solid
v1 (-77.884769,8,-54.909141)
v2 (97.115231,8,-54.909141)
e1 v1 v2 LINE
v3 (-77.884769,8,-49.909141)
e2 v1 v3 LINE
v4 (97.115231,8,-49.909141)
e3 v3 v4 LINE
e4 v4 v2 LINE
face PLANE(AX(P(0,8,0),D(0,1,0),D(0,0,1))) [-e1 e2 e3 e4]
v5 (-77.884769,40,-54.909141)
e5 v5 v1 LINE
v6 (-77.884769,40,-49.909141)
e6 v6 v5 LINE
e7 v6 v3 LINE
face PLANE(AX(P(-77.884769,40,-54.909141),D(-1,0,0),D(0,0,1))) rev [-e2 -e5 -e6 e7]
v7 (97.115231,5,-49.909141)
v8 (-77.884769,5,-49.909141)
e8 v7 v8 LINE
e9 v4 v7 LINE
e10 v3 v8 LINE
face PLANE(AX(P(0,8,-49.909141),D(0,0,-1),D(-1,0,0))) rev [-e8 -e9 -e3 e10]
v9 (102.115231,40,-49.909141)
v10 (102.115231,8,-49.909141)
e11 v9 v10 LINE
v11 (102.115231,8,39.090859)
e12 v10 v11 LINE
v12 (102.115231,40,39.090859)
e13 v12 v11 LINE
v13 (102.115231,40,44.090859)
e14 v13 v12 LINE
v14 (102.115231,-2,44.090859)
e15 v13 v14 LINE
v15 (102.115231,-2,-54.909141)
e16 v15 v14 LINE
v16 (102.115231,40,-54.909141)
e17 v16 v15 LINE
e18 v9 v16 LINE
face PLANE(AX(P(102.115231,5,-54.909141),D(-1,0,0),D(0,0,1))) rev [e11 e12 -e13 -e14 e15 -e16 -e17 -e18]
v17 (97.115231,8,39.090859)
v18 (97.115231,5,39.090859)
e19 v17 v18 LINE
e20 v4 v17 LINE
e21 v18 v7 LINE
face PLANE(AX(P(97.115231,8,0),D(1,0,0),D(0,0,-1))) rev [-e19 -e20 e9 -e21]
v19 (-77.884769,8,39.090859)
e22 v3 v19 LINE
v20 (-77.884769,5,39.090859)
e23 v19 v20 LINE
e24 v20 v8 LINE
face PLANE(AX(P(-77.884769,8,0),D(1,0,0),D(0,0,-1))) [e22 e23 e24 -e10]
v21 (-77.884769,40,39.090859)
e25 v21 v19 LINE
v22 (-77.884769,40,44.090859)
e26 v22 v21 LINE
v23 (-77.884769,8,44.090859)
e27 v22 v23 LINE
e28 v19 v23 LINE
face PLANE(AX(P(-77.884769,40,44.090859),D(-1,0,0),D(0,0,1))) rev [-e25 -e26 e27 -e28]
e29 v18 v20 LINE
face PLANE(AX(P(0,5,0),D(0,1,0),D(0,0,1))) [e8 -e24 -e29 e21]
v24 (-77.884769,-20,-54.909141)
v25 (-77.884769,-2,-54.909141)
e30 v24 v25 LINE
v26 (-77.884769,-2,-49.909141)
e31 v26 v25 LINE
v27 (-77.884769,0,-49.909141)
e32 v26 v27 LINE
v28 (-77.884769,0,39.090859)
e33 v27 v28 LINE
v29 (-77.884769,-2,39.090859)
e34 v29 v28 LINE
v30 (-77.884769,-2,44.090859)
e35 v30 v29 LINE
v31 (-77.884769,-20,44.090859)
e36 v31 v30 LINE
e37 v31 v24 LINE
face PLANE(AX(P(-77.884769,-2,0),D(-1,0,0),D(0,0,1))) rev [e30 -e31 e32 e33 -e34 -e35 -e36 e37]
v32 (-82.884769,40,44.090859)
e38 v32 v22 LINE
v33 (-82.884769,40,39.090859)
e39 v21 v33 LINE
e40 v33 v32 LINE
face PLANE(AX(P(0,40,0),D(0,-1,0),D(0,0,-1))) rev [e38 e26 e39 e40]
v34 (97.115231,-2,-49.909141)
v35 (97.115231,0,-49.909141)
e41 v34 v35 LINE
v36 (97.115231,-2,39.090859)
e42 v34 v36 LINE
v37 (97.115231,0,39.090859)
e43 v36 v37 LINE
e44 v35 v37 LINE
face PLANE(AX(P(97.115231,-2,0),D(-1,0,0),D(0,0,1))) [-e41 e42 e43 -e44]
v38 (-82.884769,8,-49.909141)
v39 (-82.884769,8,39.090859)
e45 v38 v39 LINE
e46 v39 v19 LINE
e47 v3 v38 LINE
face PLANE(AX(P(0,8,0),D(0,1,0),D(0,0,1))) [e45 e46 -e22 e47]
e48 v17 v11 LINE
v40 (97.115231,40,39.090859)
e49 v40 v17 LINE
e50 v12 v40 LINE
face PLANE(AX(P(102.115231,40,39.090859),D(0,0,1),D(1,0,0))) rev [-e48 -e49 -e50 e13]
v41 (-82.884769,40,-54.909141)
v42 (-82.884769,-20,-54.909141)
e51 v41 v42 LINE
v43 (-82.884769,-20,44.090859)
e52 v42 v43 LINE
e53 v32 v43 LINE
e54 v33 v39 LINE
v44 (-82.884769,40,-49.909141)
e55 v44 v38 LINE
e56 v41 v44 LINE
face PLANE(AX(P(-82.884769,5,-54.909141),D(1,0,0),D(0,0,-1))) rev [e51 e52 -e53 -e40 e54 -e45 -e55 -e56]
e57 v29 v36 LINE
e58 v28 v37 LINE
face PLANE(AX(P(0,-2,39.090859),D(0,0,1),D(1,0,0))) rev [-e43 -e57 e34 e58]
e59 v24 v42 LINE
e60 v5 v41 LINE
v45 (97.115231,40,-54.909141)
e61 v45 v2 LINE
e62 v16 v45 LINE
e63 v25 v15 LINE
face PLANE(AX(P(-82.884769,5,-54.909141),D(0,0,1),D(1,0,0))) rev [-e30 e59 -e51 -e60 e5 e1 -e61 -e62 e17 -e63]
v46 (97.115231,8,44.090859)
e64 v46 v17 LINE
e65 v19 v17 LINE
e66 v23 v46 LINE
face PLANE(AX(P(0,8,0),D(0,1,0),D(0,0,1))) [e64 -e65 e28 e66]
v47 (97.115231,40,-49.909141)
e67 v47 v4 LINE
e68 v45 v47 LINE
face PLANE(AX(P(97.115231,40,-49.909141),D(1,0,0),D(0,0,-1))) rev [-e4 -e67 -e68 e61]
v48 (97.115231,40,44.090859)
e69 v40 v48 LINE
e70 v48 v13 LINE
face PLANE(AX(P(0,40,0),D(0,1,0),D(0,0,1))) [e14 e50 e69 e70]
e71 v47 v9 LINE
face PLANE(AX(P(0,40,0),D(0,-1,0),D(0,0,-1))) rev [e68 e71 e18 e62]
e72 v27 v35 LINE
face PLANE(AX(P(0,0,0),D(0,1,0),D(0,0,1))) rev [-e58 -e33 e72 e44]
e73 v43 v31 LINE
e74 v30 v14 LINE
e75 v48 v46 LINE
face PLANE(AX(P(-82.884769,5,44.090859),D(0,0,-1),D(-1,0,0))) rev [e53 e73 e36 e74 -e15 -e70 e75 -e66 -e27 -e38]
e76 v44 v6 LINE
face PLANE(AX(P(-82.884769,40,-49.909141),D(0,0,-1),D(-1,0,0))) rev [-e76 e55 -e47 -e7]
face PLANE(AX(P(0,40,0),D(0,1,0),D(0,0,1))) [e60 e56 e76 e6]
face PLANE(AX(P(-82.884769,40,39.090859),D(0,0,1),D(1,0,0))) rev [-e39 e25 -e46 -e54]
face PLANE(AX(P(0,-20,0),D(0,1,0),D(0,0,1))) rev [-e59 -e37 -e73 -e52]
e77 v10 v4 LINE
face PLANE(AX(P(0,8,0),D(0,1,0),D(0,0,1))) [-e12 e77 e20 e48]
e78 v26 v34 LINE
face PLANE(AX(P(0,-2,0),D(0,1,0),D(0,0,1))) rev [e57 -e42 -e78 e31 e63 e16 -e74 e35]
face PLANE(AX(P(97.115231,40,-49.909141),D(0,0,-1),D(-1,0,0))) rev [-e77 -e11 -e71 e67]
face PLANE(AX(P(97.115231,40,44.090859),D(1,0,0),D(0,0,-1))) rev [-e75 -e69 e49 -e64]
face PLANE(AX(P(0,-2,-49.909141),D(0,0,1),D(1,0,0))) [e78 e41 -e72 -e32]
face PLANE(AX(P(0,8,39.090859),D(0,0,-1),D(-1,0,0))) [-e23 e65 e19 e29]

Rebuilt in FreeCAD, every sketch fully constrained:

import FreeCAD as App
import Part
import Sketcher
from FreeCAD import Vector

doc = App.newDocument("Part")
body = doc.addObject("PartDesign::Body", "Body")

# Sketch on XZ plane
sketch1 = body.newObject("Sketcher::SketchObject", "Sketch")
sketch1.AttachmentSupport = (doc.getObject("XZ_Plane"), [""])
sketch1.MapMode = "FlatFace"
sketch1.addGeometry([
    Part.LineSegment(Vector(-83, -55, 0), Vector(-83, 44, 0)),
    Part.LineSegment(Vector(-83, 44, 0), Vector(102, 44, 0)),
    Part.LineSegment(Vector(102, 44, 0), Vector(102, -55, 0)),
    Part.LineSegment(Vector(102, -55, 0), Vector(-83, -55, 0)),
], False)
sketch1.addConstraint([
    Sketcher.Constraint("Coincident", 0, 2, 1, 1),
    Sketcher.Constraint("Coincident", 1, 2, 2, 1),
    Sketcher.Constraint("Coincident", 2, 2, 3, 1),
    Sketcher.Constraint("Coincident", 3, 2, 0, 1),
    Sketcher.Constraint("Vertical", 0),
    Sketcher.Constraint("Horizontal", 1),
    Sketcher.Constraint("Vertical", 2),
    Sketcher.Constraint("Horizontal", 3),
    Sketcher.Constraint("DistanceX", 1, 1, 1, 2, 185.0),
    Sketcher.Constraint("DistanceY", 0, 1, 0, 2, 99.0),
    Sketcher.Constraint("DistanceX", 0, 2, -1, 1, 82.884769),
    Sketcher.Constraint("DistanceY", -1, 1, 0, 2, 44.090859),
])
pad1 = body.newObject("PartDesign::Pad", "Pad")
pad1.Profile = sketch1
pad1.Length = 5
pad1.Reversed = True

# Sketch on XZ plane
sketch2 = body.newObject("Sketcher::SketchObject", "Sketch001")
sketch2.AttachmentSupport = (doc.getObject("XZ_Plane"), [""])
sketch2.MapMode = "FlatFace"
sketch2.addGeometry([
    Part.LineSegment(Vector(-83, -55, 0), Vector(-83, 44, 0)),  # 0
    Part.LineSegment(Vector(-83, 44, 0), Vector(102, 44, 0)),  # 1
    Part.LineSegment(Vector(102, 44, 0), Vector(102, -55, 0)),  # 2
    Part.LineSegment(Vector(102, -55, 0), Vector(-83, -55, 0)),  # 3
    Part.LineSegment(Vector(-78, 39, 0), Vector(-78, -50, 0)),  # 4
    Part.LineSegment(Vector(-78, -50, 0), Vector(97, -50, 0)),  # 5
    Part.LineSegment(Vector(97, -50, 0), Vector(97, 39, 0)),  # 6
    Part.LineSegment(Vector(97, 39, 0), Vector(-78, 39, 0)),  # 7
], False)
sketch2.addConstraint([
    Sketcher.Constraint("Coincident", 0, 2, 1, 1),
    Sketcher.Constraint("Coincident", 1, 2, 2, 1),
    Sketcher.Constraint("Coincident", 2, 2, 3, 1),
    Sketcher.Constraint("Coincident", 3, 2, 0, 1),
    Sketcher.Constraint("Coincident", 4, 2, 5, 1),
    Sketcher.Constraint("Coincident", 5, 2, 6, 1),
    Sketcher.Constraint("Coincident", 6, 2, 7, 1),
    Sketcher.Constraint("Coincident", 7, 2, 4, 1),
    Sketcher.Constraint("Vertical", 0),
    Sketcher.Constraint("Horizontal", 1),
    Sketcher.Constraint("Vertical", 2),
    Sketcher.Constraint("Horizontal", 3),
    Sketcher.Constraint("Vertical", 4),
    Sketcher.Constraint("Horizontal", 5),
    Sketcher.Constraint("Vertical", 6),
    Sketcher.Constraint("Horizontal", 7),
    Sketcher.Constraint("DistanceX", 1, 1, 1, 2, 185.0),
    Sketcher.Constraint("DistanceX", 5, 1, 5, 2, 175.0),
    Sketcher.Constraint("DistanceY", 0, 1, 0, 2, 99.0),
    Sketcher.Constraint("DistanceY", 4, 2, 4, 1, 89.0),
    Sketcher.Constraint("DistanceX", 3, 2, 4, 2, 5.0),
    Sketcher.Constraint("DistanceY", 3, 2, 4, 2, 5.0),
    Sketcher.Constraint("DistanceX", 0, 2, -1, 1, 82.884769),
    Sketcher.Constraint("DistanceY", -1, 1, 0, 2, 44.090859),
])
pad2 = body.newObject("PartDesign::Pad", "Pad001")
pad2.Profile = sketch2
pad2.Length = 8
pad2.Reversed = True

# Sketch on XZ plane
sketch3 = body.newObject("Sketcher::SketchObject", "Sketch002")
sketch3.AttachmentSupport = (doc.getObject("XZ_Plane"), [""])
sketch3.MapMode = "FlatFace"
sketch3.addGeometry([
    Part.LineSegment(Vector(-83, 44, 0), Vector(102, 44, 0)),  # 0
    Part.LineSegment(Vector(102, 44, 0), Vector(102, -55, 0)),  # 1
    Part.LineSegment(Vector(102, -55, 0), Vector(-83, -55, 0)),  # 2
    Part.LineSegment(Vector(-83, -55, 0), Vector(-83, 44, 0)),  # 3
    Part.LineSegment(Vector(-78, -50, 0), Vector(97, -50, 0)),  # 4
    Part.LineSegment(Vector(97, -50, 0), Vector(97, 39, 0)),  # 5
    Part.LineSegment(Vector(97, 39, 0), Vector(-78, 39, 0)),  # 6
    Part.LineSegment(Vector(-78, 39, 0), Vector(-78, -50, 0)),  # 7
], False)
sketch3.addConstraint([
    Sketcher.Constraint("Coincident", 0, 2, 1, 1),
    Sketcher.Constraint("Coincident", 1, 2, 2, 1),
    Sketcher.Constraint("Coincident", 2, 2, 3, 1),
    Sketcher.Constraint("Coincident", 3, 2, 0, 1),
    Sketcher.Constraint("Coincident", 4, 2, 5, 1),
    Sketcher.Constraint("Coincident", 5, 2, 6, 1),
    Sketcher.Constraint("Coincident", 6, 2, 7, 1),
    Sketcher.Constraint("Coincident", 7, 2, 4, 1),
    Sketcher.Constraint("Horizontal", 0),
    Sketcher.Constraint("Vertical", 1),
    Sketcher.Constraint("Horizontal", 2),
    Sketcher.Constraint("Vertical", 3),
    Sketcher.Constraint("Horizontal", 4),
    Sketcher.Constraint("Vertical", 5),
    Sketcher.Constraint("Horizontal", 6),
    Sketcher.Constraint("Vertical", 7),
    Sketcher.Constraint("DistanceX", 0, 1, 0, 2, 185.0),
    Sketcher.Constraint("DistanceX", 4, 1, 4, 2, 175.0),
    Sketcher.Constraint("DistanceY", 1, 2, 1, 1, 99.0),
    Sketcher.Constraint("DistanceY", 5, 1, 5, 2, 89.0),
    Sketcher.Constraint("DistanceX", 4, 2, 1, 2, 5.0),
    Sketcher.Constraint("DistanceY", 1, 2, 4, 2, 5.0),
    Sketcher.Constraint("DistanceX", -1, 1, 0, 2, 102.115231),
    Sketcher.Constraint("DistanceY", -1, 1, 0, 2, 44.090859),
])
pad3 = body.newObject("PartDesign::Pad", "Pad002")
pad3.Profile = sketch3
pad3.Length = 2

# Sketch on XZ plane
sketch4 = body.newObject("Sketcher::SketchObject", "Sketch003")
sketch4.AttachmentSupport = (doc.getObject("XZ_Plane"), [""])
sketch4.MapMode = "FlatFace"
sketch4.addGeometry([
    Part.LineSegment(Vector(-83, -55, 0), Vector(-83, 44, 0)),
    Part.LineSegment(Vector(-83, 44, 0), Vector(-78, 44, 0)),
    Part.LineSegment(Vector(-78, 44, 0), Vector(-78, -55, 0)),
    Part.LineSegment(Vector(-78, -55, 0), Vector(-83, -55, 0)),
], False)
sketch4.addConstraint([
    Sketcher.Constraint("Coincident", 0, 2, 1, 1),
    Sketcher.Constraint("Coincident", 1, 2, 2, 1),
    Sketcher.Constraint("Coincident", 2, 2, 3, 1),
    Sketcher.Constraint("Coincident", 3, 2, 0, 1),
    Sketcher.Constraint("Vertical", 0),
    Sketcher.Constraint("Horizontal", 1),
    Sketcher.Constraint("Vertical", 2),
    Sketcher.Constraint("Horizontal", 3),
    Sketcher.Constraint("DistanceX", 1, 1, 1, 2, 5.0),
    Sketcher.Constraint("DistanceY", 0, 1, 0, 2, 99.0),
    Sketcher.Constraint("DistanceX", 0, 2, -1, 1, 82.884769),
    Sketcher.Constraint("DistanceY", -1, 1, 0, 2, 44.090859),
])
pad4 = body.newObject("PartDesign::Pad", "Pad003")
pad4.Profile = sketch4
pad4.Length = 20

# Sketch on XZ plane
sketch5 = body.newObject("Sketcher::SketchObject", "Sketch004")
sketch5.AttachmentSupport = (doc.getObject("XZ_Plane"), [""])
sketch5.MapMode = "FlatFace"
sketch5.addGeometry([
    Part.LineSegment(Vector(-83, -55, 0), Vector(-83, -50, 0)),  # 0
    Part.LineSegment(Vector(-83, -50, 0), Vector(-78, -50, 0)),  # 1
    Part.LineSegment(Vector(-78, -50, 0), Vector(-78, -55, 0)),  # 2
    Part.LineSegment(Vector(-78, -55, 0), Vector(-83, -55, 0)),  # 3
    Part.LineSegment(Vector(97, -55, 0), Vector(97, -50, 0)),  # 4
    Part.LineSegment(Vector(97, -50, 0), Vector(102, -50, 0)),  # 5
    Part.LineSegment(Vector(102, -50, 0), Vector(102, -55, 0)),  # 6
    Part.LineSegment(Vector(102, -55, 0), Vector(97, -55, 0)),  # 7
    Part.LineSegment(Vector(97, 39, 0), Vector(97, 44, 0)),  # 8
    Part.LineSegment(Vector(97, 44, 0), Vector(102, 44, 0)),  # 9
    Part.LineSegment(Vector(102, 44, 0), Vector(102, 39, 0)),  # 10
    Part.LineSegment(Vector(102, 39, 0), Vector(97, 39, 0)),  # 11
    Part.LineSegment(Vector(-83, 39, 0), Vector(-83, 44, 0)),  # 12
    Part.LineSegment(Vector(-83, 44, 0), Vector(-78, 44, 0)),  # 13
    Part.LineSegment(Vector(-78, 44, 0), Vector(-78, 39, 0)),  # 14
    Part.LineSegment(Vector(-78, 39, 0), Vector(-83, 39, 0)),  # 15
], False)
sketch5.addConstraint([
    Sketcher.Constraint("Coincident", 0, 2, 1, 1),
    Sketcher.Constraint("Coincident", 1, 2, 2, 1),
    Sketcher.Constraint("Coincident", 2, 2, 3, 1),
    Sketcher.Constraint("Coincident", 3, 2, 0, 1),
    Sketcher.Constraint("Coincident", 4, 2, 5, 1),
    Sketcher.Constraint("Coincident", 5, 2, 6, 1),
    Sketcher.Constraint("Coincident", 6, 2, 7, 1),
    Sketcher.Constraint("Coincident", 7, 2, 4, 1),
    Sketcher.Constraint("Coincident", 8, 2, 9, 1),
    Sketcher.Constraint("Coincident", 9, 2, 10, 1),
    Sketcher.Constraint("Coincident", 10, 2, 11, 1),
    Sketcher.Constraint("Coincident", 11, 2, 8, 1),
    Sketcher.Constraint("Coincident", 12, 2, 13, 1),
    Sketcher.Constraint("Coincident", 13, 2, 14, 1),
    Sketcher.Constraint("Coincident", 14, 2, 15, 1),
    Sketcher.Constraint("Coincident", 15, 2, 12, 1),
    Sketcher.Constraint("Vertical", 0),
    Sketcher.Constraint("Horizontal", 1),
    Sketcher.Constraint("Vertical", 2),
    Sketcher.Constraint("Horizontal", 3),
    Sketcher.Constraint("Vertical", 4),
    Sketcher.Constraint("Horizontal", 5),
    Sketcher.Constraint("Vertical", 6),
    Sketcher.Constraint("Horizontal", 7),
    Sketcher.Constraint("Vertical", 8),
    Sketcher.Constraint("Horizontal", 9),
    Sketcher.Constraint("Vertical", 10),
    Sketcher.Constraint("Horizontal", 11),
    Sketcher.Constraint("Vertical", 12),
    Sketcher.Constraint("Horizontal", 13),
    Sketcher.Constraint("Vertical", 14),
    Sketcher.Constraint("Horizontal", 15),
    Sketcher.Constraint("Horizontal", 1, 2, 4, 2),
    Sketcher.Constraint("Horizontal", 3, 2, 6, 2),
    Sketcher.Constraint("Horizontal", 9, 2, 12, 2),
    Sketcher.Constraint("Horizontal", 11, 2, 14, 2),
    Sketcher.Constraint("Vertical", 7, 2, 8, 2),
    Sketcher.Constraint("Vertical", 6, 2, 9, 2),
    Sketcher.Constraint("Vertical", 3, 2, 12, 2),
    Sketcher.Constraint("Vertical", 2, 2, 13, 2),
    Sketcher.Constraint("Equal", 3, 5),
    Sketcher.Constraint("Equal", 15, 0),
    Sketcher.Constraint("Equal", 6, 8),
    Sketcher.Constraint("DistanceX", 1, 1, 1, 2, 5.0),
    Sketcher.Constraint("DistanceX", 1, 2, 4, 2, 175.0),
    Sketcher.Constraint("DistanceY", 4, 2, 8, 2, 94.0),
    Sketcher.Constraint("DistanceX", 0, 2, -1, 1, 82.884769),
    Sketcher.Constraint("DistanceY", 0, 2, -1, 1, 49.909141),
])
pad5 = body.newObject("PartDesign::Pad", "Pad004")
pad5.Profile = sketch5
pad5.Length = 40
pad5.Reversed = True

doc.recompute()
